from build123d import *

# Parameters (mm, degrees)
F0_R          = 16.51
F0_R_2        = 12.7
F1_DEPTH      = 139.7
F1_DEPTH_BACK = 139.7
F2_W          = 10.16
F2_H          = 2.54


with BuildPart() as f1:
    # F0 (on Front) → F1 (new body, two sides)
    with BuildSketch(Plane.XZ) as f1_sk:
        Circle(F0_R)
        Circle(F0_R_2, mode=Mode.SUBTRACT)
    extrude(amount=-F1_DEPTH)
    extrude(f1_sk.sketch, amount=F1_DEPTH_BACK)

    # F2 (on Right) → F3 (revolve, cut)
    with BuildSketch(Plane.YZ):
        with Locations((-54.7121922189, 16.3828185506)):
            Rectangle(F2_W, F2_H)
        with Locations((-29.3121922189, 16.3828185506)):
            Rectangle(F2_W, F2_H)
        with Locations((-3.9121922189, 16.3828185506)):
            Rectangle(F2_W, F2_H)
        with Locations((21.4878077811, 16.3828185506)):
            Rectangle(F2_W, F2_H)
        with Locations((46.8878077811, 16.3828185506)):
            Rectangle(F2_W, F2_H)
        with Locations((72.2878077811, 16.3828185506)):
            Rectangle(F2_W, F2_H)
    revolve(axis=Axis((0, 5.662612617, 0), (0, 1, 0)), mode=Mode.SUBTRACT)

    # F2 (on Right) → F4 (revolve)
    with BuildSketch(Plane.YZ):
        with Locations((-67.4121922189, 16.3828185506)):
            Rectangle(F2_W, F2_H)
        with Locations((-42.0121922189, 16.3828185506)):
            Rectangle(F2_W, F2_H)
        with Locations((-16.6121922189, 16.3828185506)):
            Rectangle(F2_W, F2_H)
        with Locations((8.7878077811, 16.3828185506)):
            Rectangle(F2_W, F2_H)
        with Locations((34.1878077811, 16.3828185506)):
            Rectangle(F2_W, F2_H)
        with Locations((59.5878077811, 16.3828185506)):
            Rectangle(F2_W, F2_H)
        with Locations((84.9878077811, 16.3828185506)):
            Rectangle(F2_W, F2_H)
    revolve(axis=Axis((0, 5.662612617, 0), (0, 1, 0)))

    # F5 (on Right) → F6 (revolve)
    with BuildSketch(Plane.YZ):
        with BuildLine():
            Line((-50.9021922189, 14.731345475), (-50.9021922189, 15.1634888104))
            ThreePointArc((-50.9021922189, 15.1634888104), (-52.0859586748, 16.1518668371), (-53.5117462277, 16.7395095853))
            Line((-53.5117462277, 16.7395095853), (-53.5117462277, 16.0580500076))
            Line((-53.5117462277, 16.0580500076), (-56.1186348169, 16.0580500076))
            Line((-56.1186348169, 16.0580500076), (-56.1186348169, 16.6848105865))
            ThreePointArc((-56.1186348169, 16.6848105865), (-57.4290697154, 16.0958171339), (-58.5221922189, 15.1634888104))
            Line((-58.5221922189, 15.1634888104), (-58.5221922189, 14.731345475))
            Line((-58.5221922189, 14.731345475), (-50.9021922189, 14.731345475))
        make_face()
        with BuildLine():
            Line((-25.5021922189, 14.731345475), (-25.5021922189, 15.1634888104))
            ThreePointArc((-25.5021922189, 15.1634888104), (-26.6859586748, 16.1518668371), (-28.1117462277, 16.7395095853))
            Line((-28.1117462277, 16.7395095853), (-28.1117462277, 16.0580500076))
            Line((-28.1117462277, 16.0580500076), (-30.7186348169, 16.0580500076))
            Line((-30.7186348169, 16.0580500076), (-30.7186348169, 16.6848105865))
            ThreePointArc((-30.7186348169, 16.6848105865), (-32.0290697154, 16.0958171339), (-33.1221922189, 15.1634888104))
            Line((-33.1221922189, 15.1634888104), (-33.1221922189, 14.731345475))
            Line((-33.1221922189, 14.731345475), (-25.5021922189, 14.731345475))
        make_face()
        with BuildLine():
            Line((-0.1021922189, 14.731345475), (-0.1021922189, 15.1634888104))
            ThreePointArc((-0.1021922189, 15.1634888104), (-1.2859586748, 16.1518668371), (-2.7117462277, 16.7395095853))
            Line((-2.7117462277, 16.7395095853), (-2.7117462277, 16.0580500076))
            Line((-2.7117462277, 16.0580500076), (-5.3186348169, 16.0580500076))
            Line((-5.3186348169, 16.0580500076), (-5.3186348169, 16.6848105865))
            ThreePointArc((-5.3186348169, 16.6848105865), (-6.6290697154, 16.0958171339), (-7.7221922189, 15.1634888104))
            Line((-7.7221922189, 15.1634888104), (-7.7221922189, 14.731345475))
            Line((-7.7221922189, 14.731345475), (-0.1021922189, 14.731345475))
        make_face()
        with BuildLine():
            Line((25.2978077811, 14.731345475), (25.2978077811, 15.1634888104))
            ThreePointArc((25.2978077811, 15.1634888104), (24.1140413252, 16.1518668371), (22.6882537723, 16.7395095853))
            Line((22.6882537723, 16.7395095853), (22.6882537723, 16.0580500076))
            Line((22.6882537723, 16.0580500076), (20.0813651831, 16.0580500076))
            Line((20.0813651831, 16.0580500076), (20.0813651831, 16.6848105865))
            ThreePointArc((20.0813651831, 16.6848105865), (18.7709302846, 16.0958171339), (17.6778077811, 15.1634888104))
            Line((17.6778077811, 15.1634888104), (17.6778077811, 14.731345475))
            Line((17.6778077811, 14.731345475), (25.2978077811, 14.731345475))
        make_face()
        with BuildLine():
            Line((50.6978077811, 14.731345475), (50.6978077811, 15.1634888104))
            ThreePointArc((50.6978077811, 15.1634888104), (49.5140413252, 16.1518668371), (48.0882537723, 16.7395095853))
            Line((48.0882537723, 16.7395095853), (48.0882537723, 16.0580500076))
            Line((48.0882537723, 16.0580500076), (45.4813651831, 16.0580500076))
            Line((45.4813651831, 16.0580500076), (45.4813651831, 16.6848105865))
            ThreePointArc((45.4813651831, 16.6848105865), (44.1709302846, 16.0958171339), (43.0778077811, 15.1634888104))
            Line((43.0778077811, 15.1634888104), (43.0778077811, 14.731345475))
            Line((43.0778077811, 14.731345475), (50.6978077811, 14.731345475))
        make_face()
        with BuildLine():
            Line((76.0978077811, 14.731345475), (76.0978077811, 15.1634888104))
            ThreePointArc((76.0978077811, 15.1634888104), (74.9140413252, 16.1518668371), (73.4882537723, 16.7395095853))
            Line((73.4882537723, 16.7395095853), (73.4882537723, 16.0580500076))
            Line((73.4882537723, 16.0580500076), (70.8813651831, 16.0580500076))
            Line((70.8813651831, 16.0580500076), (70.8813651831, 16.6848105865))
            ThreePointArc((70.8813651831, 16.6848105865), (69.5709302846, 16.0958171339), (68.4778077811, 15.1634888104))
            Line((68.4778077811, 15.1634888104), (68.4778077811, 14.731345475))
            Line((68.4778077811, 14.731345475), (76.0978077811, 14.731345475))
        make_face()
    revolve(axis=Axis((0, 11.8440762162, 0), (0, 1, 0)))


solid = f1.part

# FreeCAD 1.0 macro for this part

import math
import FreeCAD as App
import Part
import Sketcher
from FreeCAD import Vector
Q = App.Units.Quantity

doc = App.newDocument("Part")
body = doc.addObject("PartDesign::Body", "Body")

sketch1 = body.newObject("Sketcher::SketchObject", "Sketch")
sketch1.AttachmentSupport = (doc.getObject("XZ_Plane"), [""])
sketch1.MapMode = "FlatFace"
sketch1.addGeometry([
    Part.Circle(Vector(0, 0, 0), Vector(0, 0, 1), 17),
    Part.Circle(Vector(0, 0, 0), Vector(0, 0, 1), 13),
], False)
sketch1.addConstraint([
    Sketcher.Constraint("Coincident", 0, 3, -1, 1),
    Sketcher.Constraint("Coincident", 1, 3, -1, 1),
    Sketcher.Constraint("Diameter", 1, Q("1 in")),
    Sketcher.Constraint("Diameter", 0, Q("1.3 in")),
])
pad1 = body.newObject("PartDesign::Pad", "Pad")
pad1.Profile = sketch1
pad1.Type = "TwoLengths"
pad1.Length = Q("5.5 in")
pad1.Length2 = Q("5.5 in")
pad1.Reversed = True

sketch2 = body.newObject("Sketcher::SketchObject", "Sketch001")
sketch2.AttachmentSupport = (doc.getObject("YZ_Plane"), [""])
sketch2.MapMode = "FlatFace"
sketch2.addGeometry([
    Part.LineSegment(Vector(-59.8, 17.7, 0), Vector(-59.8, 15.1, 0)),
    Part.LineSegment(Vector(-59.8, 15.1, 0), Vector(-49.6, 15.1, 0)),
    Part.LineSegment(Vector(-49.6, 15.1, 0), Vector(-49.6, 17.7, 0)),
    Part.LineSegment(Vector(-49.6, 17.7, 0), Vector(-59.8, 17.7, 0)),
    Part.LineSegment(Vector(-34.4, 17.7, 0), Vector(-34.4, 15.1, 0)),
    Part.LineSegment(Vector(-34.4, 15.1, 0), Vector(-24.2, 15.1, 0)),
    Part.LineSegment(Vector(-24.2, 15.1, 0), Vector(-24.2, 17.7, 0)),
    Part.LineSegment(Vector(-24.2, 17.7, 0), Vector(-34.4, 17.7, 0)),
    Part.LineSegment(Vector(-9, 17.7, 0), Vector(-9, 15.1, 0)),
    Part.LineSegment(Vector(-9, 15.1, 0), Vector(1.2, 15.1, 0)),
    Part.LineSegment(Vector(1.2, 15.1, 0), Vector(1.2, 17.7, 0)),
    Part.LineSegment(Vector(1.2, 17.7, 0), Vector(-9, 17.7, 0)),
    Part.LineSegment(Vector(16.4, 17.7, 0), Vector(16.4, 15.1, 0)),
    Part.LineSegment(Vector(16.4, 15.1, 0), Vector(26.6, 15.1, 0)),
    Part.LineSegment(Vector(26.6, 15.1, 0), Vector(26.6, 17.7, 0)),
    Part.LineSegment(Vector(26.6, 17.7, 0), Vector(16.4, 17.7, 0)),
    Part.LineSegment(Vector(41.8, 17.7, 0), Vector(41.8, 15.1, 0)),
    Part.LineSegment(Vector(41.8, 15.1, 0), Vector(52, 15.1, 0)),
    Part.LineSegment(Vector(52, 15.1, 0), Vector(52, 17.7, 0)),
    Part.LineSegment(Vector(52, 17.7, 0), Vector(41.8, 17.7, 0)),
    Part.LineSegment(Vector(67.2, 17.7, 0), Vector(67.2, 15.1, 0)),
    Part.LineSegment(Vector(67.2, 15.1, 0), Vector(77.4, 15.1, 0)),
    Part.LineSegment(Vector(77.4, 15.1, 0), Vector(77.4, 17.7, 0)),
    Part.LineSegment(Vector(77.4, 17.7, 0), Vector(67.2, 17.7, 0)),
], False)
sketch2.addConstraint([
    Sketcher.Constraint("Coincident", 0, 2, 1, 1),
    Sketcher.Constraint("Coincident", 1, 2, 2, 1),
    Sketcher.Constraint("Coincident", 2, 2, 3, 1),
    Sketcher.Constraint("Coincident", 3, 2, 0, 1),
    Sketcher.Constraint("Coincident", 4, 2, 5, 1),
    Sketcher.Constraint("Coincident", 5, 2, 6, 1),
    Sketcher.Constraint("Coincident", 6, 2, 7, 1),
    Sketcher.Constraint("Coincident", 7, 2, 4, 1),
    Sketcher.Constraint("Coincident", 8, 2, 9, 1),
    Sketcher.Constraint("Coincident", 9, 2, 10, 1),
    Sketcher.Constraint("Coincident", 10, 2, 11, 1),
    Sketcher.Constraint("Coincident", 11, 2, 8, 1),
    Sketcher.Constraint("Coincident", 12, 2, 13, 1),
    Sketcher.Constraint("Coincident", 13, 2, 14, 1),
    Sketcher.Constraint("Coincident", 14, 2, 15, 1),
    Sketcher.Constraint("Coincident", 15, 2, 12, 1),
    Sketcher.Constraint("Coincident", 16, 2, 17, 1),
    Sketcher.Constraint("Coincident", 17, 2, 18, 1),
    Sketcher.Constraint("Coincident", 18, 2, 19, 1),
    Sketcher.Constraint("Coincident", 19, 2, 16, 1),
    Sketcher.Constraint("Coincident", 20, 2, 21, 1),
    Sketcher.Constraint("Coincident", 21, 2, 22, 1),
    Sketcher.Constraint("Coincident", 22, 2, 23, 1),
    Sketcher.Constraint("Coincident", 23, 2, 20, 1),
    Sketcher.Constraint("Vertical", 0),
    Sketcher.Constraint("Horizontal", 1),
    Sketcher.Constraint("Vertical", 2),
    Sketcher.Constraint("Horizontal", 3),
    Sketcher.Constraint("Vertical", 4),
    Sketcher.Constraint("Horizontal", 5),
    Sketcher.Constraint("Vertical", 6),
    Sketcher.Constraint("Horizontal", 7),
    Sketcher.Constraint("Vertical", 8),
    Sketcher.Constraint("Horizontal", 9),
    Sketcher.Constraint("Vertical", 10),
    Sketcher.Constraint("Horizontal", 11),
    Sketcher.Constraint("Vertical", 12),
    Sketcher.Constraint("Horizontal", 13),
    Sketcher.Constraint("Vertical", 14),
    Sketcher.Constraint("Horizontal", 15),
    Sketcher.Constraint("Vertical", 16),
    Sketcher.Constraint("Horizontal", 17),
    Sketcher.Constraint("Vertical", 18),
    Sketcher.Constraint("Horizontal", 19),
    Sketcher.Constraint("Vertical", 20),
    Sketcher.Constraint("Horizontal", 21),
    Sketcher.Constraint("Vertical", 22),
    Sketcher.Constraint("Horizontal", 23),
    Sketcher.Constraint("Horizontal", 1, 2, 4, 2),
    Sketcher.Constraint("Horizontal", 3, 2, 6, 2),
    Sketcher.Constraint("Horizontal", 5, 2, 8, 2),
    Sketcher.Constraint("Horizontal", 7, 2, 10, 2),
    Sketcher.Constraint("Horizontal", 9, 2, 12, 2),
    Sketcher.Constraint("Horizontal", 11, 2, 14, 2),
    Sketcher.Constraint("Horizontal", 13, 2, 16, 2),
    Sketcher.Constraint("Horizontal", 15, 2, 18, 2),
    Sketcher.Constraint("Horizontal", 17, 2, 20, 2),
    Sketcher.Constraint("Horizontal", 19, 2, 22, 2),
    Sketcher.Constraint("Equal", 3, 5),
    Sketcher.Constraint("Equal", 7, 9),
    Sketcher.Constraint("Equal", 11, 13),
    Sketcher.Constraint("Equal", 15, 17),
    Sketcher.Constraint("Equal", 19, 21),
    Sketcher.Constraint("DistanceX", 1, 1, 1, 2, Q("0.4 in")),
    Sketcher.Constraint("DistanceY", 0, 2, 0, 1, Q("0.1 in")),
    Sketcher.Constraint("DistanceX", 0, 2, 4, 2, Q("1 in")),
    Sketcher.Constraint("DistanceX", 4, 2, 8, 2, Q("1 in")),
    Sketcher.Constraint("DistanceX", 8, 2, 12, 2, Q("1 in")),
    Sketcher.Constraint("DistanceX", 12, 2, 16, 2, Q("1 in")),
    Sketcher.Constraint("DistanceX", 16, 2, 20, 2, Q("1 in")),
    Sketcher.Constraint("DistanceY", -1, 1, 0, 2, 15.112819),
    Sketcher.Constraint("DistanceX", 0, 2, -1, 1, 59.792192),
])
groove = body.newObject("PartDesign::Groove", "Groove")
groove.Profile = sketch2
groove.ReferenceAxis = (sketch2, ["H_Axis"])
groove.Angle = 360

sketch3 = body.newObject("Sketcher::SketchObject", "Sketch002")
sketch3.AttachmentSupport = (doc.getObject("YZ_Plane"), [""])
sketch3.MapMode = "FlatFace"
sketch3.addGeometry([
    Part.LineSegment(Vector(-72.5, 17.7, 0), Vector(-72.5, 15.1, 0)),
    Part.LineSegment(Vector(-72.5, 15.1, 0), Vector(-62.3, 15.1, 0)),
    Part.LineSegment(Vector(-62.3, 15.1, 0), Vector(-62.3, 17.7, 0)),
    Part.LineSegment(Vector(-62.3, 17.7, 0), Vector(-72.5, 17.7, 0)),
    Part.LineSegment(Vector(-47.1, 17.7, 0), Vector(-47.1, 15.1, 0)),
    Part.LineSegment(Vector(-47.1, 15.1, 0), Vector(-36.9, 15.1, 0)),
    Part.LineSegment(Vector(-36.9, 15.1, 0), Vector(-36.9, 17.7, 0)),
    Part.LineSegment(Vector(-36.9, 17.7, 0), Vector(-47.1, 17.7, 0)),
    Part.LineSegment(Vector(-21.7, 17.7, 0), Vector(-21.7, 15.1, 0)),
    Part.LineSegment(Vector(-21.7, 15.1, 0), Vector(-11.5, 15.1, 0)),
    Part.LineSegment(Vector(-11.5, 15.1, 0), Vector(-11.5, 17.7, 0)),
    Part.LineSegment(Vector(-11.5, 17.7, 0), Vector(-21.7, 17.7, 0)),
    Part.LineSegment(Vector(3.7, 17.7, 0), Vector(3.7, 15.1, 0)),
    Part.LineSegment(Vector(3.7, 15.1, 0), Vector(13.9, 15.1, 0)),
    Part.LineSegment(Vector(13.9, 15.1, 0), Vector(13.9, 17.7, 0)),
    Part.LineSegment(Vector(13.9, 17.7, 0), Vector(3.7, 17.7, 0)),
    Part.LineSegment(Vector(29.1, 17.7, 0), Vector(29.1, 15.1, 0)),
    Part.LineSegment(Vector(29.1, 15.1, 0), Vector(39.3, 15.1, 0)),
    Part.LineSegment(Vector(39.3, 15.1, 0), Vector(39.3, 17.7, 0)),
    Part.LineSegment(Vector(39.3, 17.7, 0), Vector(29.1, 17.7, 0)),
    Part.LineSegment(Vector(54.5, 17.7, 0), Vector(54.5, 15.1, 0)),
    Part.LineSegment(Vector(54.5, 15.1, 0), Vector(64.7, 15.1, 0)),
    Part.LineSegment(Vector(64.7, 15.1, 0), Vector(64.7, 17.7, 0)),
    Part.LineSegment(Vector(64.7, 17.7, 0), Vector(54.5, 17.7, 0)),
    Part.LineSegment(Vector(79.9, 17.7, 0), Vector(79.9, 15.1, 0)),
    Part.LineSegment(Vector(79.9, 15.1, 0), Vector(90.1, 15.1, 0)),
    Part.LineSegment(Vector(90.1, 15.1, 0), Vector(90.1, 17.7, 0)),
    Part.LineSegment(Vector(90.1, 17.7, 0), Vector(79.9, 17.7, 0)),
], False)
sketch3.addConstraint([
    Sketcher.Constraint("Coincident", 0, 2, 1, 1),
    Sketcher.Constraint("Coincident", 1, 2, 2, 1),
    Sketcher.Constraint("Coincident", 2, 2, 3, 1),
    Sketcher.Constraint("Coincident", 3, 2, 0, 1),
    Sketcher.Constraint("Coincident", 4, 2, 5, 1),
    Sketcher.Constraint("Coincident", 5, 2, 6, 1),
    Sketcher.Constraint("Coincident", 6, 2, 7, 1),
    Sketcher.Constraint("Coincident", 7, 2, 4, 1),
    Sketcher.Constraint("Coincident", 8, 2, 9, 1),
    Sketcher.Constraint("Coincident", 9, 2, 10, 1),
    Sketcher.Constraint("Coincident", 10, 2, 11, 1),
    Sketcher.Constraint("Coincident", 11, 2, 8, 1),
    Sketcher.Constraint("Coincident", 12, 2, 13, 1),
    Sketcher.Constraint("Coincident", 13, 2, 14, 1),
    Sketcher.Constraint("Coincident", 14, 2, 15, 1),
    Sketcher.Constraint("Coincident", 15, 2, 12, 1),
    Sketcher.Constraint("Coincident", 16, 2, 17, 1),
    Sketcher.Constraint("Coincident", 17, 2, 18, 1),
    Sketcher.Constraint("Coincident", 18, 2, 19, 1),
    Sketcher.Constraint("Coincident", 19, 2, 16, 1),
    Sketcher.Constraint("Coincident", 20, 2, 21, 1),
    Sketcher.Constraint("Coincident", 21, 2, 22, 1),
    Sketcher.Constraint("Coincident", 22, 2, 23, 1),
    Sketcher.Constraint("Coincident", 23, 2, 20, 1),
    Sketcher.Constraint("Coincident", 24, 2, 25, 1),
    Sketcher.Constraint("Coincident", 25, 2, 26, 1),
    Sketcher.Constraint("Coincident", 26, 2, 27, 1),
    Sketcher.Constraint("Coincident", 27, 2, 24, 1),
    Sketcher.Constraint("Vertical", 0),
    Sketcher.Constraint("Horizontal", 1),
    Sketcher.Constraint("Vertical", 2),
    Sketcher.Constraint("Horizontal", 3),
    Sketcher.Constraint("Vertical", 4),
    Sketcher.Constraint("Horizontal", 5),
    Sketcher.Constraint("Vertical", 6),
    Sketcher.Constraint("Horizontal", 7),
    Sketcher.Constraint("Vertical", 8),
    Sketcher.Constraint("Horizontal", 9),
    Sketcher.Constraint("Vertical", 10),
    Sketcher.Constraint("Horizontal", 11),
    Sketcher.Constraint("Vertical", 12),
    Sketcher.Constraint("Horizontal", 13),
    Sketcher.Constraint("Vertical", 14),
    Sketcher.Constraint("Horizontal", 15),
    Sketcher.Constraint("Vertical", 16),
    Sketcher.Constraint("Horizontal", 17),
    Sketcher.Constraint("Vertical", 18),
    Sketcher.Constraint("Horizontal", 19),
    Sketcher.Constraint("Vertical", 20),
    Sketcher.Constraint("Horizontal", 21),
    Sketcher.Constraint("Vertical", 22),
    Sketcher.Constraint("Horizontal", 23),
    Sketcher.Constraint("Vertical", 24),
    Sketcher.Constraint("Horizontal", 25),
    Sketcher.Constraint("Vertical", 26),
    Sketcher.Constraint("Horizontal", 27),
    Sketcher.Constraint("Horizontal", 1, 2, 4, 2),
    Sketcher.Constraint("Horizontal", 3, 2, 6, 2),
    Sketcher.Constraint("Horizontal", 5, 2, 8, 2),
    Sketcher.Constraint("Horizontal", 7, 2, 10, 2),
    Sketcher.Constraint("Horizontal", 9, 2, 12, 2),
    Sketcher.Constraint("Horizontal", 11, 2, 14, 2),
    Sketcher.Constraint("Horizontal", 13, 2, 16, 2),
    Sketcher.Constraint("Horizontal", 15, 2, 18, 2),
    Sketcher.Constraint("Horizontal", 17, 2, 20, 2),
    Sketcher.Constraint("Horizontal", 19, 2, 22, 2),
    Sketcher.Constraint("Horizontal", 21, 2, 24, 2),
    Sketcher.Constraint("Horizontal", 23, 2, 26, 2),
    Sketcher.Constraint("Equal", 3, 5),
    Sketcher.Constraint("Equal", 7, 9),
    Sketcher.Constraint("Equal", 11, 13),
    Sketcher.Constraint("Equal", 15, 17),
    Sketcher.Constraint("Equal", 19, 21),
    Sketcher.Constraint("Equal", 23, 25),
    Sketcher.Constraint("DistanceX", 1, 1, 1, 2, Q("0.4 in")),
    Sketcher.Constraint("DistanceY", 0, 2, 0, 1, Q("0.1 in")),
    Sketcher.Constraint("DistanceX", 0, 2, 4, 2, Q("1 in")),
    Sketcher.Constraint("DistanceX", 4, 2, 8, 2, Q("1 in")),
    Sketcher.Constraint("DistanceX", 8, 2, 12, 2, Q("1 in")),
    Sketcher.Constraint("DistanceX", 12, 2, 16, 2, Q("1 in")),
    Sketcher.Constraint("DistanceX", 16, 2, 20, 2, Q("1 in")),
    Sketcher.Constraint("DistanceX", 20, 2, 24, 2, Q("1 in")),
    Sketcher.Constraint("DistanceY", -1, 1, 0, 2, 15.112819),
    Sketcher.Constraint("DistanceX", 0, 2, -1, 1, 72.492192),
])
revolution = body.newObject("PartDesign::Revolution", "Revolution")
revolution.Profile = sketch3
revolution.ReferenceAxis = (sketch3, ["H_Axis"])
revolution.Angle = 360

sketch4 = body.newObject("Sketcher::SketchObject", "Sketch003")
sketch4.AttachmentSupport = (doc.getObject("YZ_Plane"), [""])
sketch4.MapMode = "FlatFace"
sketch4.addGeometry([
    Part.LineSegment(Vector(-50.9, 14.73, 0), Vector(-50.9, 15.16, 0)),
    Part.ArcOfCircle(Part.Circle(Vector(-54.71, 11.8, 0), Vector(0, 0, 1), 5.08), math.radians(41), math.radians(76)),
    Part.LineSegment(Vector(-53.51, 16.74, 0), Vector(-53.51, 16.06, 0)),
    Part.LineSegment(Vector(-53.51, 16.06, 0), Vector(-56.12, 16.06, 0)),
    Part.LineSegment(Vector(-56.12, 16.06, 0), Vector(-56.12, 16.68, 0)),
    Part.ArcOfCircle(Part.Circle(Vector(-54.71, 11.8, 0), Vector(0, 0, 1), 5.08), math.radians(106), math.radians(139)),
    Part.LineSegment(Vector(-58.52, 15.16, 0), Vector(-58.52, 14.73, 0)),
    Part.LineSegment(Vector(-58.52, 14.73, 0), Vector(-50.9, 14.73, 0)),
    Part.LineSegment(Vector(-25.5, 14.73, 0), Vector(-25.5, 15.16, 0)),
    Part.ArcOfCircle(Part.Circle(Vector(-29.31, 11.8, 0), Vector(0, 0, 1), 5.08), math.radians(41), math.radians(76)),
    Part.LineSegment(Vector(-28.11, 16.74, 0), Vector(-28.11, 16.06, 0)),
    Part.LineSegment(Vector(-28.11, 16.06, 0), Vector(-30.72, 16.06, 0)),
    Part.LineSegment(Vector(-30.72, 16.06, 0), Vector(-30.72, 16.68, 0)),
    Part.ArcOfCircle(Part.Circle(Vector(-29.31, 11.8, 0), Vector(0, 0, 1), 5.08), math.radians(106), math.radians(139)),
    Part.LineSegment(Vector(-33.12, 15.16, 0), Vector(-33.12, 14.73, 0)),
    Part.LineSegment(Vector(-33.12, 14.73, 0), Vector(-25.5, 14.73, 0)),
    Part.LineSegment(Vector(-0.1, 14.73, 0), Vector(-0.1, 15.16, 0)),
    Part.ArcOfCircle(Part.Circle(Vector(-3.91, 11.8, 0), Vector(0, 0, 1), 5.08), math.radians(41), math.radians(76)),
    Part.LineSegment(Vector(-2.71, 16.74, 0), Vector(-2.71, 16.06, 0)),
    Part.LineSegment(Vector(-2.71, 16.06, 0), Vector(-5.32, 16.06, 0)),
    Part.LineSegment(Vector(-5.32, 16.06, 0), Vector(-5.32, 16.68, 0)),
    Part.ArcOfCircle(Part.Circle(Vector(-3.91, 11.8, 0), Vector(0, 0, 1), 5.08), math.radians(106), math.radians(139)),
    Part.LineSegment(Vector(-7.72, 15.16, 0), Vector(-7.72, 14.73, 0)),
    Part.LineSegment(Vector(-7.72, 14.73, 0), Vector(-0.1, 14.73, 0)),
    Part.LineSegment(Vector(25.3, 14.73, 0), Vector(25.3, 15.16, 0)),
    Part.ArcOfCircle(Part.Circle(Vector(21.49, 11.8, 0), Vector(0, 0, 1), 5.08), math.radians(41), math.radians(76)),
    Part.LineSegment(Vector(22.69, 16.74, 0), Vector(22.69, 16.06, 0)),
    Part.LineSegment(Vector(22.69, 16.06, 0), Vector(20.08, 16.06, 0)),
    Part.LineSegment(Vector(20.08, 16.06, 0), Vector(20.08, 16.68, 0)),
    Part.ArcOfCircle(Part.Circle(Vector(21.49, 11.8, 0), Vector(0, 0, 1), 5.08), math.radians(106), math.radians(139)),
    Part.LineSegment(Vector(17.68, 15.16, 0), Vector(17.68, 14.73, 0)),
    Part.LineSegment(Vector(17.68, 14.73, 0), Vector(25.3, 14.73, 0)),
    Part.LineSegment(Vector(50.7, 14.73, 0), Vector(50.7, 15.16, 0)),
    Part.ArcOfCircle(Part.Circle(Vector(46.89, 11.8, 0), Vector(0, 0, 1), 5.08), math.radians(41), math.radians(76)),
    Part.LineSegment(Vector(48.09, 16.74, 0), Vector(48.09, 16.06, 0)),
    Part.LineSegment(Vector(48.09, 16.06, 0), Vector(45.48, 16.06, 0)),
    Part.LineSegment(Vector(45.48, 16.06, 0), Vector(45.48, 16.68, 0)),
    Part.ArcOfCircle(Part.Circle(Vector(46.89, 11.8, 0), Vector(0, 0, 1), 5.08), math.radians(106), math.radians(139)),
    Part.LineSegment(Vector(43.08, 15.16, 0), Vector(43.08, 14.73, 0)),
    Part.LineSegment(Vector(43.08, 14.73, 0), Vector(50.7, 14.73, 0)),
    Part.LineSegment(Vector(76.1, 14.73, 0), Vector(76.1, 15.16, 0)),
    Part.ArcOfCircle(Part.Circle(Vector(72.29, 11.8, 0), Vector(0, 0, 1), 5.08), math.radians(41), math.radians(76)),
    Part.LineSegment(Vector(73.49, 16.74, 0), Vector(73.49, 16.06, 0)),
    Part.LineSegment(Vector(73.49, 16.06, 0), Vector(70.88, 16.06, 0)),
    Part.LineSegment(Vector(70.88, 16.06, 0), Vector(70.88, 16.68, 0)),
    Part.ArcOfCircle(Part.Circle(Vector(72.29, 11.8, 0), Vector(0, 0, 1), 5.08), math.radians(106), math.radians(139)),
    Part.LineSegment(Vector(68.48, 15.16, 0), Vector(68.48, 14.73, 0)),
    Part.LineSegment(Vector(68.48, 14.73, 0), Vector(76.1, 14.73, 0)),
], False)
sketch4.addConstraint([
    Sketcher.Constraint("Coincident", 0, 2, 1, 1),
    Sketcher.Constraint("Coincident", 1, 2, 2, 1),
    Sketcher.Constraint("Coincident", 2, 2, 3, 1),
    Sketcher.Constraint("Coincident", 3, 2, 4, 1),
    Sketcher.Constraint("Coincident", 4, 2, 5, 1),
    Sketcher.Constraint("Coincident", 5, 2, 6, 1),
    Sketcher.Constraint("Coincident", 6, 2, 7, 1),
    Sketcher.Constraint("Coincident", 7, 2, 0, 1),
    Sketcher.Constraint("Coincident", 8, 2, 9, 1),
    Sketcher.Constraint("Coincident", 9, 2, 10, 1),
    Sketcher.Constraint("Coincident", 10, 2, 11, 1),
    Sketcher.Constraint("Coincident", 11, 2, 12, 1),
    Sketcher.Constraint("Coincident", 12, 2, 13, 1),
    Sketcher.Constraint("Coincident", 13, 2, 14, 1),
    Sketcher.Constraint("Coincident", 14, 2, 15, 1),
    Sketcher.Constraint("Coincident", 15, 2, 8, 1),
    Sketcher.Constraint("Coincident", 16, 2, 17, 1),
    Sketcher.Constraint("Coincident", 17, 2, 18, 1),
    Sketcher.Constraint("Coincident", 18, 2, 19, 1),
    Sketcher.Constraint("Coincident", 19, 2, 20, 1),
    Sketcher.Constraint("Coincident", 20, 2, 21, 1),
    Sketcher.Constraint("Coincident", 21, 2, 22, 1),
    Sketcher.Constraint("Coincident", 22, 2, 23, 1),
    Sketcher.Constraint("Coincident", 23, 2, 16, 1),
    Sketcher.Constraint("Coincident", 24, 2, 25, 1),
    Sketcher.Constraint("Coincident", 25, 2, 26, 1),
    Sketcher.Constraint("Coincident", 26, 2, 27, 1),
    Sketcher.Constraint("Coincident", 27, 2, 28, 1),
    Sketcher.Constraint("Coincident", 28, 2, 29, 1),
    Sketcher.Constraint("Coincident", 29, 2, 30, 1),
    Sketcher.Constraint("Coincident", 30, 2, 31, 1),
    Sketcher.Constraint("Coincident", 31, 2, 24, 1),
    Sketcher.Constraint("Coincident", 32, 2, 33, 1),
    Sketcher.Constraint("Coincident", 33, 2, 34, 1),
    Sketcher.Constraint("Coincident", 34, 2, 35, 1),
    Sketcher.Constraint("Coincident", 35, 2, 36, 1),
    Sketcher.Constraint("Coincident", 36, 2, 37, 1),
    Sketcher.Constraint("Coincident", 37, 2, 38, 1),
    Sketcher.Constraint("Coincident", 38, 2, 39, 1),
    Sketcher.Constraint("Coincident", 39, 2, 32, 1),
    Sketcher.Constraint("Coincident", 40, 2, 41, 1),
    Sketcher.Constraint("Coincident", 41, 2, 42, 1),
    Sketcher.Constraint("Coincident", 42, 2, 43, 1),
    Sketcher.Constraint("Coincident", 43, 2, 44, 1),
    Sketcher.Constraint("Coincident", 44, 2, 45, 1),
    Sketcher.Constraint("Coincident", 45, 2, 46, 1),
    Sketcher.Constraint("Coincident", 46, 2, 47, 1),
    Sketcher.Constraint("Coincident", 47, 2, 40, 1),
    Sketcher.Constraint("Vertical", 0),
    Sketcher.Constraint("Vertical", 2),
    Sketcher.Constraint("Horizontal", 3),
    Sketcher.Constraint("Vertical", 4),
    Sketcher.Constraint("Vertical", 6),
    Sketcher.Constraint("Horizontal", 7),
    Sketcher.Constraint("Vertical", 8),
    Sketcher.Constraint("Vertical", 10),
    Sketcher.Constraint("Horizontal", 11),
    Sketcher.Constraint("Vertical", 12),
    Sketcher.Constraint("Vertical", 14),
    Sketcher.Constraint("Horizontal", 15),
    Sketcher.Constraint("Vertical", 16),
    Sketcher.Constraint("Vertical", 18),
    Sketcher.Constraint("Horizontal", 19),
    Sketcher.Constraint("Vertical", 20),
    Sketcher.Constraint("Vertical", 22),
    Sketcher.Constraint("Horizontal", 23),
    Sketcher.Constraint("Vertical", 24),
    Sketcher.Constraint("Vertical", 26),
    Sketcher.Constraint("Horizontal", 27),
    Sketcher.Constraint("Vertical", 28),
    Sketcher.Constraint("Vertical", 30),
    Sketcher.Constraint("Horizontal", 31),
    Sketcher.Constraint("Vertical", 32),
    Sketcher.Constraint("Vertical", 34),
    Sketcher.Constraint("Horizontal", 35),
    Sketcher.Constraint("Vertical", 36),
    Sketcher.Constraint("Vertical", 38),
    Sketcher.Constraint("Horizontal", 39),
    Sketcher.Constraint("Vertical", 40),
    Sketcher.Constraint("Vertical", 42),
    Sketcher.Constraint("Horizontal", 43),
    Sketcher.Constraint("Vertical", 44),
    Sketcher.Constraint("Vertical", 46),
    Sketcher.Constraint("Horizontal", 47),
    Sketcher.Constraint("Coincident", 5, 3, 1, 3),
    Sketcher.Constraint("Coincident", 13, 3, 9, 3),
    Sketcher.Constraint("Coincident", 21, 3, 17, 3),
    Sketcher.Constraint("Coincident", 29, 3, 25, 3),
    Sketcher.Constraint("Coincident", 37, 3, 33, 3),
    Sketcher.Constraint("Coincident", 45, 3, 41, 3),
    Sketcher.Constraint("Equal", 1, 5),
    Sketcher.Constraint("Equal", 5, 9),
    Sketcher.Constraint("Equal", 9, 13),
    Sketcher.Constraint("Equal", 13, 17),
    Sketcher.Constraint("Equal", 17, 21),
    Sketcher.Constraint("Equal", 21, 25),
    Sketcher.Constraint("Equal", 25, 29),
    Sketcher.Constraint("Equal", 29, 33),
    Sketcher.Constraint("Equal", 33, 37),
    Sketcher.Constraint("Equal", 37, 41),
    Sketcher.Constraint("Equal", 41, 45),
    Sketcher.Constraint("Horizontal", 5, 3, 9, 3),
    Sketcher.Constraint("Horizontal", 13, 3, 17, 3),
    Sketcher.Constraint("Horizontal", 21, 3, 25, 3),
    Sketcher.Constraint("Horizontal", 29, 3, 33, 3),
    Sketcher.Constraint("Horizontal", 37, 3, 41, 3),
    Sketcher.Constraint("Horizontal", 0, 2, 5, 2),
    Sketcher.Constraint("Horizontal", 5, 2, 8, 2),
    Sketcher.Constraint("Horizontal", 1, 2, 9, 2),
    Sketcher.Constraint("Horizontal", 3, 2, 10, 2),
    Sketcher.Constraint("Horizontal", 4, 2, 12, 2),
    Sketcher.Constraint("Horizontal", 8, 2, 13, 2),
    Sketcher.Constraint("Horizontal", 7, 2, 14, 2),
    Sketcher.Constraint("Horizontal", 13, 2, 16, 2),
    Sketcher.Constraint("Horizontal", 9, 2, 17, 2),
    Sketcher.Constraint("Horizontal", 11, 2, 18, 2),
    Sketcher.Constraint("Horizontal", 12, 2, 20, 2),
    Sketcher.Constraint("Horizontal", 16, 2, 21, 2),
    Sketcher.Constraint("Horizontal", 15, 2, 22, 2),
    Sketcher.Constraint("Horizontal", 21, 2, 24, 2),
    Sketcher.Constraint("Horizontal", 17, 2, 25, 2),
    Sketcher.Constraint("Horizontal", 19, 2, 26, 2),
    Sketcher.Constraint("Horizontal", 20, 2, 28, 2),
    Sketcher.Constraint("Horizontal", 24, 2, 29, 2),
    Sketcher.Constraint("Horizontal", 23, 2, 30, 2),
    Sketcher.Constraint("Horizontal", 29, 2, 32, 2),
    Sketcher.Constraint("Horizontal", 25, 2, 33, 2),
    Sketcher.Constraint("Horizontal", 27, 2, 34, 2),
    Sketcher.Constraint("Horizontal", 28, 2, 36, 2),
    Sketcher.Constraint("Horizontal", 32, 2, 37, 2),
    Sketcher.Constraint("Horizontal", 31, 2, 38, 2),
    Sketcher.Constraint("Horizontal", 37, 2, 40, 2),
    Sketcher.Constraint("Horizontal", 33, 2, 41, 2),
    Sketcher.Constraint("Horizontal", 35, 2, 42, 2),
    Sketcher.Constraint("Horizontal", 36, 2, 44, 2),
    Sketcher.Constraint("Horizontal", 40, 2, 45, 2),
    Sketcher.Constraint("Horizontal", 39, 2, 46, 2),
    Sketcher.Constraint("Radius", 1, Q("0.2 in")),
    Sketcher.Constraint("DistanceX", 7, 1, 7, 2, Q("0.3 in")),
    Sketcher.Constraint("DistanceX", 5, 3, 9, 3, Q("1 in")),
    Sketcher.Constraint("DistanceX", 13, 3, 17, 3, Q("1 in")),
    Sketcher.Constraint("DistanceX", 21, 3, 25, 3, Q("1 in")),
    Sketcher.Constraint("DistanceX", 29, 3, 33, 3, Q("1 in")),
    Sketcher.Constraint("DistanceX", 37, 3, 41, 3, Q("1 in")),
    Sketcher.Constraint("DistanceY", -1, 1, 1, 3, Q("0.4647002 in")),
    Sketcher.Constraint("DistanceX", 3, 2, 3, 1, 2.606889),
    Sketcher.Constraint("DistanceY", 2, 2, 2, 1, 0.68146),
    Sketcher.Constraint("DistanceY", 4, 1, 4, 2, 0.626761),
    Sketcher.Constraint("DistanceY", 0, 1, 0, 2, 0.432143),
    Sketcher.Constraint("DistanceX", 1, 3, -1, 1, 54.712192),
])
revolution2 = body.newObject("PartDesign::Revolution", "Revolution001")
revolution2.Profile = sketch4
revolution2.ReferenceAxis = (sketch4, ["H_Axis"])
revolution2.Angle = 360

doc.recompute()
